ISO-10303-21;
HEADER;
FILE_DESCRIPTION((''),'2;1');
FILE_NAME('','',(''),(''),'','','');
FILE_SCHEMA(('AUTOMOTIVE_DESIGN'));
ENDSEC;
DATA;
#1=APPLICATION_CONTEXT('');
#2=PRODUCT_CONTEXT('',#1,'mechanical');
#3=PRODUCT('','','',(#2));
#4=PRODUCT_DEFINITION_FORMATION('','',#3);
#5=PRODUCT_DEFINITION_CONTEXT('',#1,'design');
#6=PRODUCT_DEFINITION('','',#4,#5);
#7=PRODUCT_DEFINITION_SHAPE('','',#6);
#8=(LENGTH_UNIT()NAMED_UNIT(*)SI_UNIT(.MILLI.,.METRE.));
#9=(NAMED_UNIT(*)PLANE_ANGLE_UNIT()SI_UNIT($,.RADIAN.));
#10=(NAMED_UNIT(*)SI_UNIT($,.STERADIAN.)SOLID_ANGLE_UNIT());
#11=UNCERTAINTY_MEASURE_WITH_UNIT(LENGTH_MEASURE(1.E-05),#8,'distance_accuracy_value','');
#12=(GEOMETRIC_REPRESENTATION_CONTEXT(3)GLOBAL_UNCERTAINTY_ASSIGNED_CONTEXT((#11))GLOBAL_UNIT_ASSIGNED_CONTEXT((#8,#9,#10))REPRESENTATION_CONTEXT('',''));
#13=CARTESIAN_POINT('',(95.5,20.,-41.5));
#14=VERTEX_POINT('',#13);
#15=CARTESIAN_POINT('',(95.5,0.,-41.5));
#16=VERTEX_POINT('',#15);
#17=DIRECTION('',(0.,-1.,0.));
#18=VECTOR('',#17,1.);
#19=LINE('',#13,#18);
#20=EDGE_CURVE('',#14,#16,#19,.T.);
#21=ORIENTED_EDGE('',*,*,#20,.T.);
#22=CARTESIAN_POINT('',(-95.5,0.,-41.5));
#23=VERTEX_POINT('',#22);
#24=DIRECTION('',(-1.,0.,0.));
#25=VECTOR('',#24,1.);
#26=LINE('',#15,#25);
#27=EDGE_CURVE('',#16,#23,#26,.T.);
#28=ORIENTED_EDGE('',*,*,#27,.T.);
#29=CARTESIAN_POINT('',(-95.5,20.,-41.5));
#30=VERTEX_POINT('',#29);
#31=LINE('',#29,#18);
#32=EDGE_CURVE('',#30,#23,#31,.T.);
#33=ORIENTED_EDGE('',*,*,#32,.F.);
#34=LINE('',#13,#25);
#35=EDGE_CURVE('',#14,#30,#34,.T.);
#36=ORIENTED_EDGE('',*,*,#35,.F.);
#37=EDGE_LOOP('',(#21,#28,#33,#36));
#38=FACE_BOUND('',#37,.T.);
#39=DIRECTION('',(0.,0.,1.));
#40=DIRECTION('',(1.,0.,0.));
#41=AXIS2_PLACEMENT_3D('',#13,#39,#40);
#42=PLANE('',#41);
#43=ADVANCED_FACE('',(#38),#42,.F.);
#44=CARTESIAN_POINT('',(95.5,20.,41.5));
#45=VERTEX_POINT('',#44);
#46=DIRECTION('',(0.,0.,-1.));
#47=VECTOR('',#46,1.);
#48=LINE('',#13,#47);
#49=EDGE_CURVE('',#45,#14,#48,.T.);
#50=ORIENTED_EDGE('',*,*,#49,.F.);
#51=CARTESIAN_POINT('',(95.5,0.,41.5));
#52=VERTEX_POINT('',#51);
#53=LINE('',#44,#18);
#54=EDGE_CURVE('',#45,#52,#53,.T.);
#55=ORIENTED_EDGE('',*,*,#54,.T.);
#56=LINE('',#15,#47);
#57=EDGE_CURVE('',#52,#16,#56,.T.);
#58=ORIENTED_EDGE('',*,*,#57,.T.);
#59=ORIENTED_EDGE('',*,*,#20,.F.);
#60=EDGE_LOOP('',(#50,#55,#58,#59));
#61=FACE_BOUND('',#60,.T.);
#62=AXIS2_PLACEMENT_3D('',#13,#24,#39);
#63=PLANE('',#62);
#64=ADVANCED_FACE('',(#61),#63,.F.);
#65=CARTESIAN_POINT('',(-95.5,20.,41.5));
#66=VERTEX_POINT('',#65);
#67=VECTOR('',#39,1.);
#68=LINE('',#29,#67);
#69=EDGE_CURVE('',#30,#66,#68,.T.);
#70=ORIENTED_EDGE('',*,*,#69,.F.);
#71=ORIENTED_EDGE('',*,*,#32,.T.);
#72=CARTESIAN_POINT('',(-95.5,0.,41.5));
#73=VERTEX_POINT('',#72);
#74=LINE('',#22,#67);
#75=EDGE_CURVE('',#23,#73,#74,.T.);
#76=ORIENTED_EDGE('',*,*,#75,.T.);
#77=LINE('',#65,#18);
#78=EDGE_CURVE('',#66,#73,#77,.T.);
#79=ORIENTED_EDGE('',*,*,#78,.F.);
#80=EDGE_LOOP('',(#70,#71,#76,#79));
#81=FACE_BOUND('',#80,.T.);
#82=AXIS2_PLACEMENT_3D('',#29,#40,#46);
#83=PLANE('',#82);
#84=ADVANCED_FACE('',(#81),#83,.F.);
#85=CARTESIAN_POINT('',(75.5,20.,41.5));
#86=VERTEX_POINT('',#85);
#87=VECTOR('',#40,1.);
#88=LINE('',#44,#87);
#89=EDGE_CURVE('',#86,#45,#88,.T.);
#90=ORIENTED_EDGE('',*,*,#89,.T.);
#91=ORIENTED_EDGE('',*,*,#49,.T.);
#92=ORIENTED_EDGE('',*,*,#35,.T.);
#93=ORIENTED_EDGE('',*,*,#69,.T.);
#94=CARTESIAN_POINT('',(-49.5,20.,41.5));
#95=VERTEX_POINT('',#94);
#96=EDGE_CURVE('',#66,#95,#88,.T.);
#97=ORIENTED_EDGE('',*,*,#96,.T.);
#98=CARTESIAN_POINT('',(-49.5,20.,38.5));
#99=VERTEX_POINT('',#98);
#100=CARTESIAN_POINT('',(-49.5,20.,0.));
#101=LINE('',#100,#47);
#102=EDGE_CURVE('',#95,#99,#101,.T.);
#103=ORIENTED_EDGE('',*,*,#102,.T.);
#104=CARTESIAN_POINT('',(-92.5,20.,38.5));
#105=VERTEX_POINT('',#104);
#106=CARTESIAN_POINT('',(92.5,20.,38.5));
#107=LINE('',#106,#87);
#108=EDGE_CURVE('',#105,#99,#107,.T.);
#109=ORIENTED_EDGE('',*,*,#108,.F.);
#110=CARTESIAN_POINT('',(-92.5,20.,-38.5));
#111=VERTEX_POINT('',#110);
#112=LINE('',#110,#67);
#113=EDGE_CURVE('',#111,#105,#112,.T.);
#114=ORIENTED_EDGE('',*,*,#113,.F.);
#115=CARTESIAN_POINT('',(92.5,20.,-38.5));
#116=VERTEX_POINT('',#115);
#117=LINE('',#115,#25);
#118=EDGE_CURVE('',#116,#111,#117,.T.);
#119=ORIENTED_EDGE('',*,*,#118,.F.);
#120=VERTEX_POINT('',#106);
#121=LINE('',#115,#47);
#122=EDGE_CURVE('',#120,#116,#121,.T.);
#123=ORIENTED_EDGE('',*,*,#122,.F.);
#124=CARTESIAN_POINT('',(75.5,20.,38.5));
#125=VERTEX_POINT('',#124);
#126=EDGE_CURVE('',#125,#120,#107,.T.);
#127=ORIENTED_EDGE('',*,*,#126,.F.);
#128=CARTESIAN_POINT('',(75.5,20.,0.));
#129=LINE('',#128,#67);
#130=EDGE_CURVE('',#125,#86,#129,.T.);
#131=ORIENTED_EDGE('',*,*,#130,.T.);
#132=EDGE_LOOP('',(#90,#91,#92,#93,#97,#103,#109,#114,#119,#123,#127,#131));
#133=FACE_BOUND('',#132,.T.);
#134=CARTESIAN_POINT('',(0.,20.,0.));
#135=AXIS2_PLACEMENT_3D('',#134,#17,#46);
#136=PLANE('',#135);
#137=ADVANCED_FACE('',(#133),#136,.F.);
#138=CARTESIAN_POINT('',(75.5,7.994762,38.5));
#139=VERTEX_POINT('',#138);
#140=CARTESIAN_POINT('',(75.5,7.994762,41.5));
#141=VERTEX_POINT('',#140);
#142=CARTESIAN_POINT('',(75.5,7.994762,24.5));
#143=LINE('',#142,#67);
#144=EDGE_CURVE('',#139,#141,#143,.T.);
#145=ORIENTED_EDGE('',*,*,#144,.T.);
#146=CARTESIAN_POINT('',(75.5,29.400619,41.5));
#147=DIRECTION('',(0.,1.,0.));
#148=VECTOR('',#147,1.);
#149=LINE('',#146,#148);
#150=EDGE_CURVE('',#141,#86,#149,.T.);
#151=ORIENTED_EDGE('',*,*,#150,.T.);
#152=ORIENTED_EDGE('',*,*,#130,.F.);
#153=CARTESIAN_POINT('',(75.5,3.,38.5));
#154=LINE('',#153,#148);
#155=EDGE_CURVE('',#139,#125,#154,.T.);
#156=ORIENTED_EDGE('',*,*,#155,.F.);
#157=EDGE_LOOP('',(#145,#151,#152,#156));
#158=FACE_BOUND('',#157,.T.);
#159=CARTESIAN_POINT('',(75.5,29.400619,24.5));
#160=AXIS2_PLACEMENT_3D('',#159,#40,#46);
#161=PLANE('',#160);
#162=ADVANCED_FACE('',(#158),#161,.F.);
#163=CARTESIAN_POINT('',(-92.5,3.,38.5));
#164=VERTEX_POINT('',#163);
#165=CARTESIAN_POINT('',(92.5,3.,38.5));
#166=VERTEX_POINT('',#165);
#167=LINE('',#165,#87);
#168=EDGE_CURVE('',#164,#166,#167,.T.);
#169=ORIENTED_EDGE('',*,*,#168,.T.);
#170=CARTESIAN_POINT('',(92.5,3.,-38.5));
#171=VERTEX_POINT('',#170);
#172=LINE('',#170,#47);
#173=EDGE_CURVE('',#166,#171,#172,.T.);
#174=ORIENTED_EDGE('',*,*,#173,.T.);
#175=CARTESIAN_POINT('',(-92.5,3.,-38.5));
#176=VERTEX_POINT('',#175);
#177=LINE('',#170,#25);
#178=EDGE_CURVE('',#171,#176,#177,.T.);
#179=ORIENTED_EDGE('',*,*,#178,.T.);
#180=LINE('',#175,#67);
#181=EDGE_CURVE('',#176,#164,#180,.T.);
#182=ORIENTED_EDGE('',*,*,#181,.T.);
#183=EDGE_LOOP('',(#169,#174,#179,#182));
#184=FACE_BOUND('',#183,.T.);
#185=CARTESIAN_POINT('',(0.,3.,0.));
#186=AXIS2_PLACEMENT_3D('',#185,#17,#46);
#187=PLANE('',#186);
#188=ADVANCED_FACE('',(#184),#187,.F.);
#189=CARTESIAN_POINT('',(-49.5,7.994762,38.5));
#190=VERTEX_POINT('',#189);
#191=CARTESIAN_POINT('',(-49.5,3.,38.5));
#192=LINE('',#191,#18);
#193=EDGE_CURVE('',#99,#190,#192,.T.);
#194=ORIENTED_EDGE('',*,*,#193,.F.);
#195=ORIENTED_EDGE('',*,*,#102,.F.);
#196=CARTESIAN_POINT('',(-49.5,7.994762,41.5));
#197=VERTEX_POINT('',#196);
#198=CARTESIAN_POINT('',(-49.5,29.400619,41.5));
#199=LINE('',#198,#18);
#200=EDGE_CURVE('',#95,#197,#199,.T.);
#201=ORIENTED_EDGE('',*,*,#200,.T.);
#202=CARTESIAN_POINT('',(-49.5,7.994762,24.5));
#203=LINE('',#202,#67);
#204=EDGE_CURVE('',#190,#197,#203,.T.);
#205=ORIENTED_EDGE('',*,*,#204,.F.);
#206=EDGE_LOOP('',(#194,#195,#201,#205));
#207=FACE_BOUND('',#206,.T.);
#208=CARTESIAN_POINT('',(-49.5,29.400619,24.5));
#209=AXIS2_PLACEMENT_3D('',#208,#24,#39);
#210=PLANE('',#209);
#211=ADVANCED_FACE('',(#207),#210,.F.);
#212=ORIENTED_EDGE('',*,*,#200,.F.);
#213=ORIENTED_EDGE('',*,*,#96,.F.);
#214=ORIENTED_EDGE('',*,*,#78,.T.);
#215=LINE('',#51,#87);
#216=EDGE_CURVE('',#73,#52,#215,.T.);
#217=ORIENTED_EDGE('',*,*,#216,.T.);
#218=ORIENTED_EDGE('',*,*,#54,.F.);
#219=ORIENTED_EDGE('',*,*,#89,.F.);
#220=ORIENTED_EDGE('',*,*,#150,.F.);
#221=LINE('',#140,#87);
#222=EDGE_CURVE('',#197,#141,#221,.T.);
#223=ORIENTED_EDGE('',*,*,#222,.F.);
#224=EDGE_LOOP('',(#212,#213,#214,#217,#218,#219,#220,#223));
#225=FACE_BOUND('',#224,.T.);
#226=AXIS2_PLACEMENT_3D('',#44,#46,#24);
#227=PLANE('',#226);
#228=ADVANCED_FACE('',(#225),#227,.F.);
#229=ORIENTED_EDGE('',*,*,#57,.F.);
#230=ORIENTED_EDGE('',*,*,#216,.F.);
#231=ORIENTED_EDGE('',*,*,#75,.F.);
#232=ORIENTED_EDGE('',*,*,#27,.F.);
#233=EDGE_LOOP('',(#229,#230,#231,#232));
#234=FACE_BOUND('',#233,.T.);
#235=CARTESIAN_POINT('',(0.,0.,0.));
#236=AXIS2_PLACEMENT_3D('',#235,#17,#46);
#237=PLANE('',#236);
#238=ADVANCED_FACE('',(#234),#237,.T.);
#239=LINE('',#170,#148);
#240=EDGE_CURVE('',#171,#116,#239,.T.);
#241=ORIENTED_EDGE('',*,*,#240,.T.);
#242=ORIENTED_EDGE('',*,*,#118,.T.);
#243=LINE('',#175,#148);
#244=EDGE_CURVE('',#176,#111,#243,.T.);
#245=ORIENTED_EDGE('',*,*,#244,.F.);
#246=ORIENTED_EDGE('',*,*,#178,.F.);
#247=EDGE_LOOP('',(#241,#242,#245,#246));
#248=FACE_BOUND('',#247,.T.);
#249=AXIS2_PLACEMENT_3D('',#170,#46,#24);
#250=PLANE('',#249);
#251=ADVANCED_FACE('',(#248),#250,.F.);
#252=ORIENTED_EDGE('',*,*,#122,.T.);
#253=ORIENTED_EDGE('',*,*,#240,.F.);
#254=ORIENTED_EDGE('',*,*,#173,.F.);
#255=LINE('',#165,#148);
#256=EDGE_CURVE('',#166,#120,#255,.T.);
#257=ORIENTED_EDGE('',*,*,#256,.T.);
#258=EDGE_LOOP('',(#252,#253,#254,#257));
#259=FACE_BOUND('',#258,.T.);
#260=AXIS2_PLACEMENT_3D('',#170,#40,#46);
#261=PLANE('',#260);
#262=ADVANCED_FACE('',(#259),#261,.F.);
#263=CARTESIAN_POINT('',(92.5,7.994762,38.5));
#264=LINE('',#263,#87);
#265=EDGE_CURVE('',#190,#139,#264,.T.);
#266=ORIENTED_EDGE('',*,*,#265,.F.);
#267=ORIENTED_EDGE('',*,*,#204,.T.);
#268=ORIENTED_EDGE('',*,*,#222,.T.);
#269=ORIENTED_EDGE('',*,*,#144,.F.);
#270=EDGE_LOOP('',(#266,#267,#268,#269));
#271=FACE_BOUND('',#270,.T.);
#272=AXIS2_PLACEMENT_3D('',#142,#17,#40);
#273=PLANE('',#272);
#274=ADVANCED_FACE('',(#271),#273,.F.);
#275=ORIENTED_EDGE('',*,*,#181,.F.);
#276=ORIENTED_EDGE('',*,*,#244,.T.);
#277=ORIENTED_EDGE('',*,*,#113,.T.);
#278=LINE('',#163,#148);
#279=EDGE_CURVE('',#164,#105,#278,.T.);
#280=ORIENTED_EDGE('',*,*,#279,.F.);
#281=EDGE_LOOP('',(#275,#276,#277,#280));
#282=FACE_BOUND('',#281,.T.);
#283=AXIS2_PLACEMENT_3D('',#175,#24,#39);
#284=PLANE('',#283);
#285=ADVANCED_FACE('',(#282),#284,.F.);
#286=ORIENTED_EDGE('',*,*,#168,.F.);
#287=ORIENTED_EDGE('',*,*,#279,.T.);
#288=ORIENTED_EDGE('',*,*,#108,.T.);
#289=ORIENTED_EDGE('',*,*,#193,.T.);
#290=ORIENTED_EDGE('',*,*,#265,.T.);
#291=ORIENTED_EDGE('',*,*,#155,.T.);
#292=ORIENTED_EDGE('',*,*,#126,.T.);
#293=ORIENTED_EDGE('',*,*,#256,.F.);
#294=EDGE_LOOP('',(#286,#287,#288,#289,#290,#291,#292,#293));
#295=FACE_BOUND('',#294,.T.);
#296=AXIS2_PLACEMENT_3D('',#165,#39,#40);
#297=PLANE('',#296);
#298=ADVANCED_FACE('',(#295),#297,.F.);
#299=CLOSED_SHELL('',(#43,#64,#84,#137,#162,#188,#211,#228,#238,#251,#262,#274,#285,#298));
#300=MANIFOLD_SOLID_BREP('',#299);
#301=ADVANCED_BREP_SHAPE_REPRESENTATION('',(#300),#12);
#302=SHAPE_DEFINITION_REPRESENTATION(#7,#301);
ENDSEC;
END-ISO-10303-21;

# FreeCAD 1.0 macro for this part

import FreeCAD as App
import Part
import Sketcher
Q = App.Units.Quantity

doc = App.newDocument("Part")
params = doc.addObject("Spreadsheet::Sheet", "Params")
for row, (alias, value) in enumerate([
    ("sketch1_width", "191 mm"),
    ("sketch1_height", "83 mm"),
    ("pad1_length", "20 mm"),
    ("sketch2_width", "185 mm"),
    ("sketch2_height", "77 mm"),
    ("pocket1_length", "17 mm"),
    ("sketch3_width", "125 mm"),
    ("pocket2_length", "17 mm"),
], start=1):
    params.set(f"A{row}", alias)
    params.set(f"B{row}", "=" + value)
    params.setAlias(f"B{row}", alias)

body = doc.addObject("PartDesign::Body", "Body")

# Sketch on XZ plane
sketch1 = body.newObject("Sketcher::SketchObject", "Sketch")
sketch1.AttachmentSupport = (doc.getObject("XZ_Plane"), [""])
sketch1.MapMode = "FlatFace"
sketch1.addGeometry([
    Part.LineSegment(App.Vector(-96, -42, 0), App.Vector(-96, 42, 0)),
    Part.LineSegment(App.Vector(-96, 42, 0), App.Vector(96, 42, 0)),
    Part.LineSegment(App.Vector(96, 42, 0), App.Vector(96, -42, 0)),
    Part.LineSegment(App.Vector(96, -42, 0), App.Vector(-96, -42, 0)),
], False)
sketch1.addConstraint([
    Sketcher.Constraint("Coincident", 0, 2, 1, 1),
    Sketcher.Constraint("Coincident", 1, 2, 2, 1),
    Sketcher.Constraint("Coincident", 2, 2, 3, 1),
    Sketcher.Constraint("Coincident", 3, 2, 0, 1),
    Sketcher.Constraint("Vertical", 0),
    Sketcher.Constraint("Horizontal", 1),
    Sketcher.Constraint("Vertical", 2),
    Sketcher.Constraint("Horizontal", 3),
    Sketcher.Constraint("Symmetric", 0, 2, 2, 2, -1, 1),
    Sketcher.Constraint("DistanceX", 1, 1, 1, 2, Q("191 mm")),
    Sketcher.Constraint("DistanceY", 0, 1, 0, 2, Q("83 mm")),
])
sketch1.setExpression("Constraints[9]", "Params.sketch1_width")
sketch1.setExpression("Constraints[10]", "Params.sketch1_height")
pad1 = body.newObject("PartDesign::Pad", "Pad")
pad1.Profile = sketch1
pad1.setExpression("Length", "Params.pad1_length")
pad1.Reversed = True

# Sketch on XZ plane
sketch2 = body.newObject("Sketcher::SketchObject", "Sketch001")
sketch2.AttachmentSupport = (doc.getObject("XZ_Plane"), [""])
sketch2.MapMode = "FlatFace"
sketch2.AttachmentOffset = App.Placement(App.Vector(0, 0, -20), App.Rotation())
sketch2.addGeometry([
    Part.LineSegment(App.Vector(-92, -38, 0), App.Vector(-92, 38, 0)),
    Part.LineSegment(App.Vector(-92, 38, 0), App.Vector(92, 38, 0)),
    Part.LineSegment(App.Vector(92, 38, 0), App.Vector(92, -38, 0)),
    Part.LineSegment(App.Vector(92, -38, 0), App.Vector(-92, -38, 0)),
], False)
sketch2.addConstraint([
    Sketcher.Constraint("Coincident", 0, 2, 1, 1),
    Sketcher.Constraint("Coincident", 1, 2, 2, 1),
    Sketcher.Constraint("Coincident", 2, 2, 3, 1),
    Sketcher.Constraint("Coincident", 3, 2, 0, 1),
    Sketcher.Constraint("Vertical", 0),
    Sketcher.Constraint("Horizontal", 1),
    Sketcher.Constraint("Vertical", 2),
    Sketcher.Constraint("Horizontal", 3),
    Sketcher.Constraint("Symmetric", 0, 2, 2, 2, -1, 1),
    Sketcher.Constraint("DistanceX", 1, 1, 1, 2, Q("185 mm")),
    Sketcher.Constraint("DistanceY", 0, 1, 0, 2, Q("77 mm")),
])
sketch2.setExpression("Constraints[9]", "Params.sketch2_width")
sketch2.setExpression("Constraints[10]", "Params.sketch2_height")
pocket1 = body.newObject("PartDesign::Pocket", "Pocket")
pocket1.Profile = sketch2
pocket1.setExpression("Length", "Params.pocket1_length")
pocket1.Reversed = True

# Sketch on XY plane
sketch3 = body.newObject("Sketcher::SketchObject", "Sketch002")
sketch3.AttachmentSupport = (doc.getObject("XY_Plane"), [""])
sketch3.MapMode = "FlatFace"
sketch3.AttachmentOffset = App.Placement(App.Vector(0, 0, 41.5), App.Rotation())
sketch3.addGeometry([
    Part.LineSegment(App.Vector(-50, 29, 0), App.Vector(-50, 8, 0)),
    Part.LineSegment(App.Vector(-50, 8, 0), App.Vector(76, 8, 0)),
    Part.LineSegment(App.Vector(76, 8, 0), App.Vector(76, 29, 0)),
    Part.LineSegment(App.Vector(76, 29, 0), App.Vector(-50, 29, 0)),
], False)
sketch3.addConstraint([
    Sketcher.Constraint("Coincident", 0, 2, 1, 1),
    Sketcher.Constraint("Coincident", 1, 2, 2, 1),
    Sketcher.Constraint("Coincident", 2, 2, 3, 1),
    Sketcher.Constraint("Coincident", 3, 2, 0, 1),
    Sketcher.Constraint("Vertical", 0),
    Sketcher.Constraint("Horizontal", 1),
    Sketcher.Constraint("Vertical", 2),
    Sketcher.Constraint("Horizontal", 3),
    Sketcher.Constraint("DistanceX", 1, 1, 1, 2, Q("125 mm")),
    Sketcher.Constraint("DistanceX", 0, 2, -1, 1, Q("49.5 mm")),
    Sketcher.Constraint("DistanceY", 0, 2, 0, 1, Q("21.405857 mm")),
    Sketcher.Constraint("DistanceY", -1, 1, 0, 2, Q("7.994762 mm")),
])
sketch3.setExpression("Constraints[8]", "Params.sketch3_width")
pocket2 = body.newObject("PartDesign::Pocket", "Pocket001")
pocket2.Profile = sketch3
pocket2.setExpression("Length", "Params.pocket2_length")

doc.recompute()
